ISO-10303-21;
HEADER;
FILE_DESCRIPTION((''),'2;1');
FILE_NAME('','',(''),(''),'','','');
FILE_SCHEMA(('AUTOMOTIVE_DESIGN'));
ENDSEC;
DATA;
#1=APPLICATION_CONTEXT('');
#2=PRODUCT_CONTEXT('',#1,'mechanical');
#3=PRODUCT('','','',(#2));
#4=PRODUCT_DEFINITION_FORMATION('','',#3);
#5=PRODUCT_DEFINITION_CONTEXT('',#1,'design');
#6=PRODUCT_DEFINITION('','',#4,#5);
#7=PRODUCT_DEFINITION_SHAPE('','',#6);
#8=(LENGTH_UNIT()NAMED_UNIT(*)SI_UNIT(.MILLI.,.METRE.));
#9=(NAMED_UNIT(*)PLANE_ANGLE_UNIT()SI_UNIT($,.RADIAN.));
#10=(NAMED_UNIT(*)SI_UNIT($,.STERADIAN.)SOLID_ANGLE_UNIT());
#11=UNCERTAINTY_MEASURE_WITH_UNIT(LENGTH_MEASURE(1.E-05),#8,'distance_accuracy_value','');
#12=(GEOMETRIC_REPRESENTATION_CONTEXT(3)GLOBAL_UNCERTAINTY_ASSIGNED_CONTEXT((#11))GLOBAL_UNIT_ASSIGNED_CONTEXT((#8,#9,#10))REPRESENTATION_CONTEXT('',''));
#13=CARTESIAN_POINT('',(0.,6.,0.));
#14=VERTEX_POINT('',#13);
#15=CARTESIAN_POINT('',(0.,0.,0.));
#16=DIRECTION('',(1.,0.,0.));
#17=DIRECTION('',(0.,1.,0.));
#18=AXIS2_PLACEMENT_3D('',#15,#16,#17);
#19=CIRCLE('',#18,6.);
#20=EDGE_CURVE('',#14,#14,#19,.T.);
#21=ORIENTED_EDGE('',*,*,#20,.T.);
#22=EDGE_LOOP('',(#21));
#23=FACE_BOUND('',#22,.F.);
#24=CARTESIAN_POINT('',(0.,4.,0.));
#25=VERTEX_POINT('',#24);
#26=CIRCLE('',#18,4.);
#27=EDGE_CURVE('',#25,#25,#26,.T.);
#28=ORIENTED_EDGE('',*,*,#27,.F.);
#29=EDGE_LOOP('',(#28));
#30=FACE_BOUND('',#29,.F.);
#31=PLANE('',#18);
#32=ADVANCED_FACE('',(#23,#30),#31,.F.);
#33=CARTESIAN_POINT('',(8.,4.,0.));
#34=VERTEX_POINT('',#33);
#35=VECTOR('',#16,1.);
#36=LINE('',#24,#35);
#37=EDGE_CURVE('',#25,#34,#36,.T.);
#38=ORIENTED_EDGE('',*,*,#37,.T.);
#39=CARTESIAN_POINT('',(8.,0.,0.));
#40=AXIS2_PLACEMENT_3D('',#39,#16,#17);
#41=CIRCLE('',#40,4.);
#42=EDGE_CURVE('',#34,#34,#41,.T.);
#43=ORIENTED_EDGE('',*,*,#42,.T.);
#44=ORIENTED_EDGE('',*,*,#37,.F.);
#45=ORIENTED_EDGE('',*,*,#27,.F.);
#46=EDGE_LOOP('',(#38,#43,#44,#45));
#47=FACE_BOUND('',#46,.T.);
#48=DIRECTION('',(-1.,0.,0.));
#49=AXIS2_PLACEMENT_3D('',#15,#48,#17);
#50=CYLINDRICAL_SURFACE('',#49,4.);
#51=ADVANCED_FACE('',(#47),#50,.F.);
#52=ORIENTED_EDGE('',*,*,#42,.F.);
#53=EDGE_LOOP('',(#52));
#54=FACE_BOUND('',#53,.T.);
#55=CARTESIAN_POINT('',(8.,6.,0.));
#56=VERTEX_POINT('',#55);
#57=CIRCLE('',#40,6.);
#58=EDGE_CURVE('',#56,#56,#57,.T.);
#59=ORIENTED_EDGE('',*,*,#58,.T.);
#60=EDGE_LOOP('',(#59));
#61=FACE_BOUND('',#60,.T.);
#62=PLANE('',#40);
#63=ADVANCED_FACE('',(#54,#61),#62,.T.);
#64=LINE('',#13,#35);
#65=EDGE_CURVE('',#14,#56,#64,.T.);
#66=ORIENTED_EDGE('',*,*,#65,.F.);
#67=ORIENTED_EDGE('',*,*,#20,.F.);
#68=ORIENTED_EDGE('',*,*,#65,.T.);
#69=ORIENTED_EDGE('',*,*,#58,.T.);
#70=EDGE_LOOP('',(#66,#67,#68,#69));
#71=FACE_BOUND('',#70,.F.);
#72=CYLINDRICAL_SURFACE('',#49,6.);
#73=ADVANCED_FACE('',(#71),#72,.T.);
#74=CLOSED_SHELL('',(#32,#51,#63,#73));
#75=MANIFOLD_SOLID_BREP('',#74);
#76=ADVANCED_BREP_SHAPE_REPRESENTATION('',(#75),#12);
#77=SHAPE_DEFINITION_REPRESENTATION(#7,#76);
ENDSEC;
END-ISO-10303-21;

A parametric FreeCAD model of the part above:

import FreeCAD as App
import Part
import Sketcher

V = App.Vector

doc = App.newDocument("Part")
body = doc.addObject("PartDesign::Body", "Body")

# Sketch on YZ plane
sketch1 = body.newObject("Sketcher::SketchObject", "Sketch")
sketch1.AttachmentSupport = (doc.getObject("YZ_Plane"), [""])
sketch1.MapMode = "FlatFace"
sketch1.addGeometry(Part.Circle(V(0, 0, 0), V(0, 0, 1), 6), False)
sketch1.addGeometry(Part.Circle(V(0, 0, 0), V(0, 0, 1), 4), False)
sketch1.addConstraint(Sketcher.Constraint("Coincident", 0, 3, -1, 1))
sketch1.addConstraint(Sketcher.Constraint("Coincident", 1, 3, -1, 1))
sketch1.addConstraint(Sketcher.Constraint("Diameter", 0, 12.0))
sketch1.addConstraint(Sketcher.Constraint("Diameter", 1, 8.0))
pad1 = body.newObject("PartDesign::Pad", "Pad")
pad1.Profile = sketch1
pad1.Length = 8

doc.recompute()
